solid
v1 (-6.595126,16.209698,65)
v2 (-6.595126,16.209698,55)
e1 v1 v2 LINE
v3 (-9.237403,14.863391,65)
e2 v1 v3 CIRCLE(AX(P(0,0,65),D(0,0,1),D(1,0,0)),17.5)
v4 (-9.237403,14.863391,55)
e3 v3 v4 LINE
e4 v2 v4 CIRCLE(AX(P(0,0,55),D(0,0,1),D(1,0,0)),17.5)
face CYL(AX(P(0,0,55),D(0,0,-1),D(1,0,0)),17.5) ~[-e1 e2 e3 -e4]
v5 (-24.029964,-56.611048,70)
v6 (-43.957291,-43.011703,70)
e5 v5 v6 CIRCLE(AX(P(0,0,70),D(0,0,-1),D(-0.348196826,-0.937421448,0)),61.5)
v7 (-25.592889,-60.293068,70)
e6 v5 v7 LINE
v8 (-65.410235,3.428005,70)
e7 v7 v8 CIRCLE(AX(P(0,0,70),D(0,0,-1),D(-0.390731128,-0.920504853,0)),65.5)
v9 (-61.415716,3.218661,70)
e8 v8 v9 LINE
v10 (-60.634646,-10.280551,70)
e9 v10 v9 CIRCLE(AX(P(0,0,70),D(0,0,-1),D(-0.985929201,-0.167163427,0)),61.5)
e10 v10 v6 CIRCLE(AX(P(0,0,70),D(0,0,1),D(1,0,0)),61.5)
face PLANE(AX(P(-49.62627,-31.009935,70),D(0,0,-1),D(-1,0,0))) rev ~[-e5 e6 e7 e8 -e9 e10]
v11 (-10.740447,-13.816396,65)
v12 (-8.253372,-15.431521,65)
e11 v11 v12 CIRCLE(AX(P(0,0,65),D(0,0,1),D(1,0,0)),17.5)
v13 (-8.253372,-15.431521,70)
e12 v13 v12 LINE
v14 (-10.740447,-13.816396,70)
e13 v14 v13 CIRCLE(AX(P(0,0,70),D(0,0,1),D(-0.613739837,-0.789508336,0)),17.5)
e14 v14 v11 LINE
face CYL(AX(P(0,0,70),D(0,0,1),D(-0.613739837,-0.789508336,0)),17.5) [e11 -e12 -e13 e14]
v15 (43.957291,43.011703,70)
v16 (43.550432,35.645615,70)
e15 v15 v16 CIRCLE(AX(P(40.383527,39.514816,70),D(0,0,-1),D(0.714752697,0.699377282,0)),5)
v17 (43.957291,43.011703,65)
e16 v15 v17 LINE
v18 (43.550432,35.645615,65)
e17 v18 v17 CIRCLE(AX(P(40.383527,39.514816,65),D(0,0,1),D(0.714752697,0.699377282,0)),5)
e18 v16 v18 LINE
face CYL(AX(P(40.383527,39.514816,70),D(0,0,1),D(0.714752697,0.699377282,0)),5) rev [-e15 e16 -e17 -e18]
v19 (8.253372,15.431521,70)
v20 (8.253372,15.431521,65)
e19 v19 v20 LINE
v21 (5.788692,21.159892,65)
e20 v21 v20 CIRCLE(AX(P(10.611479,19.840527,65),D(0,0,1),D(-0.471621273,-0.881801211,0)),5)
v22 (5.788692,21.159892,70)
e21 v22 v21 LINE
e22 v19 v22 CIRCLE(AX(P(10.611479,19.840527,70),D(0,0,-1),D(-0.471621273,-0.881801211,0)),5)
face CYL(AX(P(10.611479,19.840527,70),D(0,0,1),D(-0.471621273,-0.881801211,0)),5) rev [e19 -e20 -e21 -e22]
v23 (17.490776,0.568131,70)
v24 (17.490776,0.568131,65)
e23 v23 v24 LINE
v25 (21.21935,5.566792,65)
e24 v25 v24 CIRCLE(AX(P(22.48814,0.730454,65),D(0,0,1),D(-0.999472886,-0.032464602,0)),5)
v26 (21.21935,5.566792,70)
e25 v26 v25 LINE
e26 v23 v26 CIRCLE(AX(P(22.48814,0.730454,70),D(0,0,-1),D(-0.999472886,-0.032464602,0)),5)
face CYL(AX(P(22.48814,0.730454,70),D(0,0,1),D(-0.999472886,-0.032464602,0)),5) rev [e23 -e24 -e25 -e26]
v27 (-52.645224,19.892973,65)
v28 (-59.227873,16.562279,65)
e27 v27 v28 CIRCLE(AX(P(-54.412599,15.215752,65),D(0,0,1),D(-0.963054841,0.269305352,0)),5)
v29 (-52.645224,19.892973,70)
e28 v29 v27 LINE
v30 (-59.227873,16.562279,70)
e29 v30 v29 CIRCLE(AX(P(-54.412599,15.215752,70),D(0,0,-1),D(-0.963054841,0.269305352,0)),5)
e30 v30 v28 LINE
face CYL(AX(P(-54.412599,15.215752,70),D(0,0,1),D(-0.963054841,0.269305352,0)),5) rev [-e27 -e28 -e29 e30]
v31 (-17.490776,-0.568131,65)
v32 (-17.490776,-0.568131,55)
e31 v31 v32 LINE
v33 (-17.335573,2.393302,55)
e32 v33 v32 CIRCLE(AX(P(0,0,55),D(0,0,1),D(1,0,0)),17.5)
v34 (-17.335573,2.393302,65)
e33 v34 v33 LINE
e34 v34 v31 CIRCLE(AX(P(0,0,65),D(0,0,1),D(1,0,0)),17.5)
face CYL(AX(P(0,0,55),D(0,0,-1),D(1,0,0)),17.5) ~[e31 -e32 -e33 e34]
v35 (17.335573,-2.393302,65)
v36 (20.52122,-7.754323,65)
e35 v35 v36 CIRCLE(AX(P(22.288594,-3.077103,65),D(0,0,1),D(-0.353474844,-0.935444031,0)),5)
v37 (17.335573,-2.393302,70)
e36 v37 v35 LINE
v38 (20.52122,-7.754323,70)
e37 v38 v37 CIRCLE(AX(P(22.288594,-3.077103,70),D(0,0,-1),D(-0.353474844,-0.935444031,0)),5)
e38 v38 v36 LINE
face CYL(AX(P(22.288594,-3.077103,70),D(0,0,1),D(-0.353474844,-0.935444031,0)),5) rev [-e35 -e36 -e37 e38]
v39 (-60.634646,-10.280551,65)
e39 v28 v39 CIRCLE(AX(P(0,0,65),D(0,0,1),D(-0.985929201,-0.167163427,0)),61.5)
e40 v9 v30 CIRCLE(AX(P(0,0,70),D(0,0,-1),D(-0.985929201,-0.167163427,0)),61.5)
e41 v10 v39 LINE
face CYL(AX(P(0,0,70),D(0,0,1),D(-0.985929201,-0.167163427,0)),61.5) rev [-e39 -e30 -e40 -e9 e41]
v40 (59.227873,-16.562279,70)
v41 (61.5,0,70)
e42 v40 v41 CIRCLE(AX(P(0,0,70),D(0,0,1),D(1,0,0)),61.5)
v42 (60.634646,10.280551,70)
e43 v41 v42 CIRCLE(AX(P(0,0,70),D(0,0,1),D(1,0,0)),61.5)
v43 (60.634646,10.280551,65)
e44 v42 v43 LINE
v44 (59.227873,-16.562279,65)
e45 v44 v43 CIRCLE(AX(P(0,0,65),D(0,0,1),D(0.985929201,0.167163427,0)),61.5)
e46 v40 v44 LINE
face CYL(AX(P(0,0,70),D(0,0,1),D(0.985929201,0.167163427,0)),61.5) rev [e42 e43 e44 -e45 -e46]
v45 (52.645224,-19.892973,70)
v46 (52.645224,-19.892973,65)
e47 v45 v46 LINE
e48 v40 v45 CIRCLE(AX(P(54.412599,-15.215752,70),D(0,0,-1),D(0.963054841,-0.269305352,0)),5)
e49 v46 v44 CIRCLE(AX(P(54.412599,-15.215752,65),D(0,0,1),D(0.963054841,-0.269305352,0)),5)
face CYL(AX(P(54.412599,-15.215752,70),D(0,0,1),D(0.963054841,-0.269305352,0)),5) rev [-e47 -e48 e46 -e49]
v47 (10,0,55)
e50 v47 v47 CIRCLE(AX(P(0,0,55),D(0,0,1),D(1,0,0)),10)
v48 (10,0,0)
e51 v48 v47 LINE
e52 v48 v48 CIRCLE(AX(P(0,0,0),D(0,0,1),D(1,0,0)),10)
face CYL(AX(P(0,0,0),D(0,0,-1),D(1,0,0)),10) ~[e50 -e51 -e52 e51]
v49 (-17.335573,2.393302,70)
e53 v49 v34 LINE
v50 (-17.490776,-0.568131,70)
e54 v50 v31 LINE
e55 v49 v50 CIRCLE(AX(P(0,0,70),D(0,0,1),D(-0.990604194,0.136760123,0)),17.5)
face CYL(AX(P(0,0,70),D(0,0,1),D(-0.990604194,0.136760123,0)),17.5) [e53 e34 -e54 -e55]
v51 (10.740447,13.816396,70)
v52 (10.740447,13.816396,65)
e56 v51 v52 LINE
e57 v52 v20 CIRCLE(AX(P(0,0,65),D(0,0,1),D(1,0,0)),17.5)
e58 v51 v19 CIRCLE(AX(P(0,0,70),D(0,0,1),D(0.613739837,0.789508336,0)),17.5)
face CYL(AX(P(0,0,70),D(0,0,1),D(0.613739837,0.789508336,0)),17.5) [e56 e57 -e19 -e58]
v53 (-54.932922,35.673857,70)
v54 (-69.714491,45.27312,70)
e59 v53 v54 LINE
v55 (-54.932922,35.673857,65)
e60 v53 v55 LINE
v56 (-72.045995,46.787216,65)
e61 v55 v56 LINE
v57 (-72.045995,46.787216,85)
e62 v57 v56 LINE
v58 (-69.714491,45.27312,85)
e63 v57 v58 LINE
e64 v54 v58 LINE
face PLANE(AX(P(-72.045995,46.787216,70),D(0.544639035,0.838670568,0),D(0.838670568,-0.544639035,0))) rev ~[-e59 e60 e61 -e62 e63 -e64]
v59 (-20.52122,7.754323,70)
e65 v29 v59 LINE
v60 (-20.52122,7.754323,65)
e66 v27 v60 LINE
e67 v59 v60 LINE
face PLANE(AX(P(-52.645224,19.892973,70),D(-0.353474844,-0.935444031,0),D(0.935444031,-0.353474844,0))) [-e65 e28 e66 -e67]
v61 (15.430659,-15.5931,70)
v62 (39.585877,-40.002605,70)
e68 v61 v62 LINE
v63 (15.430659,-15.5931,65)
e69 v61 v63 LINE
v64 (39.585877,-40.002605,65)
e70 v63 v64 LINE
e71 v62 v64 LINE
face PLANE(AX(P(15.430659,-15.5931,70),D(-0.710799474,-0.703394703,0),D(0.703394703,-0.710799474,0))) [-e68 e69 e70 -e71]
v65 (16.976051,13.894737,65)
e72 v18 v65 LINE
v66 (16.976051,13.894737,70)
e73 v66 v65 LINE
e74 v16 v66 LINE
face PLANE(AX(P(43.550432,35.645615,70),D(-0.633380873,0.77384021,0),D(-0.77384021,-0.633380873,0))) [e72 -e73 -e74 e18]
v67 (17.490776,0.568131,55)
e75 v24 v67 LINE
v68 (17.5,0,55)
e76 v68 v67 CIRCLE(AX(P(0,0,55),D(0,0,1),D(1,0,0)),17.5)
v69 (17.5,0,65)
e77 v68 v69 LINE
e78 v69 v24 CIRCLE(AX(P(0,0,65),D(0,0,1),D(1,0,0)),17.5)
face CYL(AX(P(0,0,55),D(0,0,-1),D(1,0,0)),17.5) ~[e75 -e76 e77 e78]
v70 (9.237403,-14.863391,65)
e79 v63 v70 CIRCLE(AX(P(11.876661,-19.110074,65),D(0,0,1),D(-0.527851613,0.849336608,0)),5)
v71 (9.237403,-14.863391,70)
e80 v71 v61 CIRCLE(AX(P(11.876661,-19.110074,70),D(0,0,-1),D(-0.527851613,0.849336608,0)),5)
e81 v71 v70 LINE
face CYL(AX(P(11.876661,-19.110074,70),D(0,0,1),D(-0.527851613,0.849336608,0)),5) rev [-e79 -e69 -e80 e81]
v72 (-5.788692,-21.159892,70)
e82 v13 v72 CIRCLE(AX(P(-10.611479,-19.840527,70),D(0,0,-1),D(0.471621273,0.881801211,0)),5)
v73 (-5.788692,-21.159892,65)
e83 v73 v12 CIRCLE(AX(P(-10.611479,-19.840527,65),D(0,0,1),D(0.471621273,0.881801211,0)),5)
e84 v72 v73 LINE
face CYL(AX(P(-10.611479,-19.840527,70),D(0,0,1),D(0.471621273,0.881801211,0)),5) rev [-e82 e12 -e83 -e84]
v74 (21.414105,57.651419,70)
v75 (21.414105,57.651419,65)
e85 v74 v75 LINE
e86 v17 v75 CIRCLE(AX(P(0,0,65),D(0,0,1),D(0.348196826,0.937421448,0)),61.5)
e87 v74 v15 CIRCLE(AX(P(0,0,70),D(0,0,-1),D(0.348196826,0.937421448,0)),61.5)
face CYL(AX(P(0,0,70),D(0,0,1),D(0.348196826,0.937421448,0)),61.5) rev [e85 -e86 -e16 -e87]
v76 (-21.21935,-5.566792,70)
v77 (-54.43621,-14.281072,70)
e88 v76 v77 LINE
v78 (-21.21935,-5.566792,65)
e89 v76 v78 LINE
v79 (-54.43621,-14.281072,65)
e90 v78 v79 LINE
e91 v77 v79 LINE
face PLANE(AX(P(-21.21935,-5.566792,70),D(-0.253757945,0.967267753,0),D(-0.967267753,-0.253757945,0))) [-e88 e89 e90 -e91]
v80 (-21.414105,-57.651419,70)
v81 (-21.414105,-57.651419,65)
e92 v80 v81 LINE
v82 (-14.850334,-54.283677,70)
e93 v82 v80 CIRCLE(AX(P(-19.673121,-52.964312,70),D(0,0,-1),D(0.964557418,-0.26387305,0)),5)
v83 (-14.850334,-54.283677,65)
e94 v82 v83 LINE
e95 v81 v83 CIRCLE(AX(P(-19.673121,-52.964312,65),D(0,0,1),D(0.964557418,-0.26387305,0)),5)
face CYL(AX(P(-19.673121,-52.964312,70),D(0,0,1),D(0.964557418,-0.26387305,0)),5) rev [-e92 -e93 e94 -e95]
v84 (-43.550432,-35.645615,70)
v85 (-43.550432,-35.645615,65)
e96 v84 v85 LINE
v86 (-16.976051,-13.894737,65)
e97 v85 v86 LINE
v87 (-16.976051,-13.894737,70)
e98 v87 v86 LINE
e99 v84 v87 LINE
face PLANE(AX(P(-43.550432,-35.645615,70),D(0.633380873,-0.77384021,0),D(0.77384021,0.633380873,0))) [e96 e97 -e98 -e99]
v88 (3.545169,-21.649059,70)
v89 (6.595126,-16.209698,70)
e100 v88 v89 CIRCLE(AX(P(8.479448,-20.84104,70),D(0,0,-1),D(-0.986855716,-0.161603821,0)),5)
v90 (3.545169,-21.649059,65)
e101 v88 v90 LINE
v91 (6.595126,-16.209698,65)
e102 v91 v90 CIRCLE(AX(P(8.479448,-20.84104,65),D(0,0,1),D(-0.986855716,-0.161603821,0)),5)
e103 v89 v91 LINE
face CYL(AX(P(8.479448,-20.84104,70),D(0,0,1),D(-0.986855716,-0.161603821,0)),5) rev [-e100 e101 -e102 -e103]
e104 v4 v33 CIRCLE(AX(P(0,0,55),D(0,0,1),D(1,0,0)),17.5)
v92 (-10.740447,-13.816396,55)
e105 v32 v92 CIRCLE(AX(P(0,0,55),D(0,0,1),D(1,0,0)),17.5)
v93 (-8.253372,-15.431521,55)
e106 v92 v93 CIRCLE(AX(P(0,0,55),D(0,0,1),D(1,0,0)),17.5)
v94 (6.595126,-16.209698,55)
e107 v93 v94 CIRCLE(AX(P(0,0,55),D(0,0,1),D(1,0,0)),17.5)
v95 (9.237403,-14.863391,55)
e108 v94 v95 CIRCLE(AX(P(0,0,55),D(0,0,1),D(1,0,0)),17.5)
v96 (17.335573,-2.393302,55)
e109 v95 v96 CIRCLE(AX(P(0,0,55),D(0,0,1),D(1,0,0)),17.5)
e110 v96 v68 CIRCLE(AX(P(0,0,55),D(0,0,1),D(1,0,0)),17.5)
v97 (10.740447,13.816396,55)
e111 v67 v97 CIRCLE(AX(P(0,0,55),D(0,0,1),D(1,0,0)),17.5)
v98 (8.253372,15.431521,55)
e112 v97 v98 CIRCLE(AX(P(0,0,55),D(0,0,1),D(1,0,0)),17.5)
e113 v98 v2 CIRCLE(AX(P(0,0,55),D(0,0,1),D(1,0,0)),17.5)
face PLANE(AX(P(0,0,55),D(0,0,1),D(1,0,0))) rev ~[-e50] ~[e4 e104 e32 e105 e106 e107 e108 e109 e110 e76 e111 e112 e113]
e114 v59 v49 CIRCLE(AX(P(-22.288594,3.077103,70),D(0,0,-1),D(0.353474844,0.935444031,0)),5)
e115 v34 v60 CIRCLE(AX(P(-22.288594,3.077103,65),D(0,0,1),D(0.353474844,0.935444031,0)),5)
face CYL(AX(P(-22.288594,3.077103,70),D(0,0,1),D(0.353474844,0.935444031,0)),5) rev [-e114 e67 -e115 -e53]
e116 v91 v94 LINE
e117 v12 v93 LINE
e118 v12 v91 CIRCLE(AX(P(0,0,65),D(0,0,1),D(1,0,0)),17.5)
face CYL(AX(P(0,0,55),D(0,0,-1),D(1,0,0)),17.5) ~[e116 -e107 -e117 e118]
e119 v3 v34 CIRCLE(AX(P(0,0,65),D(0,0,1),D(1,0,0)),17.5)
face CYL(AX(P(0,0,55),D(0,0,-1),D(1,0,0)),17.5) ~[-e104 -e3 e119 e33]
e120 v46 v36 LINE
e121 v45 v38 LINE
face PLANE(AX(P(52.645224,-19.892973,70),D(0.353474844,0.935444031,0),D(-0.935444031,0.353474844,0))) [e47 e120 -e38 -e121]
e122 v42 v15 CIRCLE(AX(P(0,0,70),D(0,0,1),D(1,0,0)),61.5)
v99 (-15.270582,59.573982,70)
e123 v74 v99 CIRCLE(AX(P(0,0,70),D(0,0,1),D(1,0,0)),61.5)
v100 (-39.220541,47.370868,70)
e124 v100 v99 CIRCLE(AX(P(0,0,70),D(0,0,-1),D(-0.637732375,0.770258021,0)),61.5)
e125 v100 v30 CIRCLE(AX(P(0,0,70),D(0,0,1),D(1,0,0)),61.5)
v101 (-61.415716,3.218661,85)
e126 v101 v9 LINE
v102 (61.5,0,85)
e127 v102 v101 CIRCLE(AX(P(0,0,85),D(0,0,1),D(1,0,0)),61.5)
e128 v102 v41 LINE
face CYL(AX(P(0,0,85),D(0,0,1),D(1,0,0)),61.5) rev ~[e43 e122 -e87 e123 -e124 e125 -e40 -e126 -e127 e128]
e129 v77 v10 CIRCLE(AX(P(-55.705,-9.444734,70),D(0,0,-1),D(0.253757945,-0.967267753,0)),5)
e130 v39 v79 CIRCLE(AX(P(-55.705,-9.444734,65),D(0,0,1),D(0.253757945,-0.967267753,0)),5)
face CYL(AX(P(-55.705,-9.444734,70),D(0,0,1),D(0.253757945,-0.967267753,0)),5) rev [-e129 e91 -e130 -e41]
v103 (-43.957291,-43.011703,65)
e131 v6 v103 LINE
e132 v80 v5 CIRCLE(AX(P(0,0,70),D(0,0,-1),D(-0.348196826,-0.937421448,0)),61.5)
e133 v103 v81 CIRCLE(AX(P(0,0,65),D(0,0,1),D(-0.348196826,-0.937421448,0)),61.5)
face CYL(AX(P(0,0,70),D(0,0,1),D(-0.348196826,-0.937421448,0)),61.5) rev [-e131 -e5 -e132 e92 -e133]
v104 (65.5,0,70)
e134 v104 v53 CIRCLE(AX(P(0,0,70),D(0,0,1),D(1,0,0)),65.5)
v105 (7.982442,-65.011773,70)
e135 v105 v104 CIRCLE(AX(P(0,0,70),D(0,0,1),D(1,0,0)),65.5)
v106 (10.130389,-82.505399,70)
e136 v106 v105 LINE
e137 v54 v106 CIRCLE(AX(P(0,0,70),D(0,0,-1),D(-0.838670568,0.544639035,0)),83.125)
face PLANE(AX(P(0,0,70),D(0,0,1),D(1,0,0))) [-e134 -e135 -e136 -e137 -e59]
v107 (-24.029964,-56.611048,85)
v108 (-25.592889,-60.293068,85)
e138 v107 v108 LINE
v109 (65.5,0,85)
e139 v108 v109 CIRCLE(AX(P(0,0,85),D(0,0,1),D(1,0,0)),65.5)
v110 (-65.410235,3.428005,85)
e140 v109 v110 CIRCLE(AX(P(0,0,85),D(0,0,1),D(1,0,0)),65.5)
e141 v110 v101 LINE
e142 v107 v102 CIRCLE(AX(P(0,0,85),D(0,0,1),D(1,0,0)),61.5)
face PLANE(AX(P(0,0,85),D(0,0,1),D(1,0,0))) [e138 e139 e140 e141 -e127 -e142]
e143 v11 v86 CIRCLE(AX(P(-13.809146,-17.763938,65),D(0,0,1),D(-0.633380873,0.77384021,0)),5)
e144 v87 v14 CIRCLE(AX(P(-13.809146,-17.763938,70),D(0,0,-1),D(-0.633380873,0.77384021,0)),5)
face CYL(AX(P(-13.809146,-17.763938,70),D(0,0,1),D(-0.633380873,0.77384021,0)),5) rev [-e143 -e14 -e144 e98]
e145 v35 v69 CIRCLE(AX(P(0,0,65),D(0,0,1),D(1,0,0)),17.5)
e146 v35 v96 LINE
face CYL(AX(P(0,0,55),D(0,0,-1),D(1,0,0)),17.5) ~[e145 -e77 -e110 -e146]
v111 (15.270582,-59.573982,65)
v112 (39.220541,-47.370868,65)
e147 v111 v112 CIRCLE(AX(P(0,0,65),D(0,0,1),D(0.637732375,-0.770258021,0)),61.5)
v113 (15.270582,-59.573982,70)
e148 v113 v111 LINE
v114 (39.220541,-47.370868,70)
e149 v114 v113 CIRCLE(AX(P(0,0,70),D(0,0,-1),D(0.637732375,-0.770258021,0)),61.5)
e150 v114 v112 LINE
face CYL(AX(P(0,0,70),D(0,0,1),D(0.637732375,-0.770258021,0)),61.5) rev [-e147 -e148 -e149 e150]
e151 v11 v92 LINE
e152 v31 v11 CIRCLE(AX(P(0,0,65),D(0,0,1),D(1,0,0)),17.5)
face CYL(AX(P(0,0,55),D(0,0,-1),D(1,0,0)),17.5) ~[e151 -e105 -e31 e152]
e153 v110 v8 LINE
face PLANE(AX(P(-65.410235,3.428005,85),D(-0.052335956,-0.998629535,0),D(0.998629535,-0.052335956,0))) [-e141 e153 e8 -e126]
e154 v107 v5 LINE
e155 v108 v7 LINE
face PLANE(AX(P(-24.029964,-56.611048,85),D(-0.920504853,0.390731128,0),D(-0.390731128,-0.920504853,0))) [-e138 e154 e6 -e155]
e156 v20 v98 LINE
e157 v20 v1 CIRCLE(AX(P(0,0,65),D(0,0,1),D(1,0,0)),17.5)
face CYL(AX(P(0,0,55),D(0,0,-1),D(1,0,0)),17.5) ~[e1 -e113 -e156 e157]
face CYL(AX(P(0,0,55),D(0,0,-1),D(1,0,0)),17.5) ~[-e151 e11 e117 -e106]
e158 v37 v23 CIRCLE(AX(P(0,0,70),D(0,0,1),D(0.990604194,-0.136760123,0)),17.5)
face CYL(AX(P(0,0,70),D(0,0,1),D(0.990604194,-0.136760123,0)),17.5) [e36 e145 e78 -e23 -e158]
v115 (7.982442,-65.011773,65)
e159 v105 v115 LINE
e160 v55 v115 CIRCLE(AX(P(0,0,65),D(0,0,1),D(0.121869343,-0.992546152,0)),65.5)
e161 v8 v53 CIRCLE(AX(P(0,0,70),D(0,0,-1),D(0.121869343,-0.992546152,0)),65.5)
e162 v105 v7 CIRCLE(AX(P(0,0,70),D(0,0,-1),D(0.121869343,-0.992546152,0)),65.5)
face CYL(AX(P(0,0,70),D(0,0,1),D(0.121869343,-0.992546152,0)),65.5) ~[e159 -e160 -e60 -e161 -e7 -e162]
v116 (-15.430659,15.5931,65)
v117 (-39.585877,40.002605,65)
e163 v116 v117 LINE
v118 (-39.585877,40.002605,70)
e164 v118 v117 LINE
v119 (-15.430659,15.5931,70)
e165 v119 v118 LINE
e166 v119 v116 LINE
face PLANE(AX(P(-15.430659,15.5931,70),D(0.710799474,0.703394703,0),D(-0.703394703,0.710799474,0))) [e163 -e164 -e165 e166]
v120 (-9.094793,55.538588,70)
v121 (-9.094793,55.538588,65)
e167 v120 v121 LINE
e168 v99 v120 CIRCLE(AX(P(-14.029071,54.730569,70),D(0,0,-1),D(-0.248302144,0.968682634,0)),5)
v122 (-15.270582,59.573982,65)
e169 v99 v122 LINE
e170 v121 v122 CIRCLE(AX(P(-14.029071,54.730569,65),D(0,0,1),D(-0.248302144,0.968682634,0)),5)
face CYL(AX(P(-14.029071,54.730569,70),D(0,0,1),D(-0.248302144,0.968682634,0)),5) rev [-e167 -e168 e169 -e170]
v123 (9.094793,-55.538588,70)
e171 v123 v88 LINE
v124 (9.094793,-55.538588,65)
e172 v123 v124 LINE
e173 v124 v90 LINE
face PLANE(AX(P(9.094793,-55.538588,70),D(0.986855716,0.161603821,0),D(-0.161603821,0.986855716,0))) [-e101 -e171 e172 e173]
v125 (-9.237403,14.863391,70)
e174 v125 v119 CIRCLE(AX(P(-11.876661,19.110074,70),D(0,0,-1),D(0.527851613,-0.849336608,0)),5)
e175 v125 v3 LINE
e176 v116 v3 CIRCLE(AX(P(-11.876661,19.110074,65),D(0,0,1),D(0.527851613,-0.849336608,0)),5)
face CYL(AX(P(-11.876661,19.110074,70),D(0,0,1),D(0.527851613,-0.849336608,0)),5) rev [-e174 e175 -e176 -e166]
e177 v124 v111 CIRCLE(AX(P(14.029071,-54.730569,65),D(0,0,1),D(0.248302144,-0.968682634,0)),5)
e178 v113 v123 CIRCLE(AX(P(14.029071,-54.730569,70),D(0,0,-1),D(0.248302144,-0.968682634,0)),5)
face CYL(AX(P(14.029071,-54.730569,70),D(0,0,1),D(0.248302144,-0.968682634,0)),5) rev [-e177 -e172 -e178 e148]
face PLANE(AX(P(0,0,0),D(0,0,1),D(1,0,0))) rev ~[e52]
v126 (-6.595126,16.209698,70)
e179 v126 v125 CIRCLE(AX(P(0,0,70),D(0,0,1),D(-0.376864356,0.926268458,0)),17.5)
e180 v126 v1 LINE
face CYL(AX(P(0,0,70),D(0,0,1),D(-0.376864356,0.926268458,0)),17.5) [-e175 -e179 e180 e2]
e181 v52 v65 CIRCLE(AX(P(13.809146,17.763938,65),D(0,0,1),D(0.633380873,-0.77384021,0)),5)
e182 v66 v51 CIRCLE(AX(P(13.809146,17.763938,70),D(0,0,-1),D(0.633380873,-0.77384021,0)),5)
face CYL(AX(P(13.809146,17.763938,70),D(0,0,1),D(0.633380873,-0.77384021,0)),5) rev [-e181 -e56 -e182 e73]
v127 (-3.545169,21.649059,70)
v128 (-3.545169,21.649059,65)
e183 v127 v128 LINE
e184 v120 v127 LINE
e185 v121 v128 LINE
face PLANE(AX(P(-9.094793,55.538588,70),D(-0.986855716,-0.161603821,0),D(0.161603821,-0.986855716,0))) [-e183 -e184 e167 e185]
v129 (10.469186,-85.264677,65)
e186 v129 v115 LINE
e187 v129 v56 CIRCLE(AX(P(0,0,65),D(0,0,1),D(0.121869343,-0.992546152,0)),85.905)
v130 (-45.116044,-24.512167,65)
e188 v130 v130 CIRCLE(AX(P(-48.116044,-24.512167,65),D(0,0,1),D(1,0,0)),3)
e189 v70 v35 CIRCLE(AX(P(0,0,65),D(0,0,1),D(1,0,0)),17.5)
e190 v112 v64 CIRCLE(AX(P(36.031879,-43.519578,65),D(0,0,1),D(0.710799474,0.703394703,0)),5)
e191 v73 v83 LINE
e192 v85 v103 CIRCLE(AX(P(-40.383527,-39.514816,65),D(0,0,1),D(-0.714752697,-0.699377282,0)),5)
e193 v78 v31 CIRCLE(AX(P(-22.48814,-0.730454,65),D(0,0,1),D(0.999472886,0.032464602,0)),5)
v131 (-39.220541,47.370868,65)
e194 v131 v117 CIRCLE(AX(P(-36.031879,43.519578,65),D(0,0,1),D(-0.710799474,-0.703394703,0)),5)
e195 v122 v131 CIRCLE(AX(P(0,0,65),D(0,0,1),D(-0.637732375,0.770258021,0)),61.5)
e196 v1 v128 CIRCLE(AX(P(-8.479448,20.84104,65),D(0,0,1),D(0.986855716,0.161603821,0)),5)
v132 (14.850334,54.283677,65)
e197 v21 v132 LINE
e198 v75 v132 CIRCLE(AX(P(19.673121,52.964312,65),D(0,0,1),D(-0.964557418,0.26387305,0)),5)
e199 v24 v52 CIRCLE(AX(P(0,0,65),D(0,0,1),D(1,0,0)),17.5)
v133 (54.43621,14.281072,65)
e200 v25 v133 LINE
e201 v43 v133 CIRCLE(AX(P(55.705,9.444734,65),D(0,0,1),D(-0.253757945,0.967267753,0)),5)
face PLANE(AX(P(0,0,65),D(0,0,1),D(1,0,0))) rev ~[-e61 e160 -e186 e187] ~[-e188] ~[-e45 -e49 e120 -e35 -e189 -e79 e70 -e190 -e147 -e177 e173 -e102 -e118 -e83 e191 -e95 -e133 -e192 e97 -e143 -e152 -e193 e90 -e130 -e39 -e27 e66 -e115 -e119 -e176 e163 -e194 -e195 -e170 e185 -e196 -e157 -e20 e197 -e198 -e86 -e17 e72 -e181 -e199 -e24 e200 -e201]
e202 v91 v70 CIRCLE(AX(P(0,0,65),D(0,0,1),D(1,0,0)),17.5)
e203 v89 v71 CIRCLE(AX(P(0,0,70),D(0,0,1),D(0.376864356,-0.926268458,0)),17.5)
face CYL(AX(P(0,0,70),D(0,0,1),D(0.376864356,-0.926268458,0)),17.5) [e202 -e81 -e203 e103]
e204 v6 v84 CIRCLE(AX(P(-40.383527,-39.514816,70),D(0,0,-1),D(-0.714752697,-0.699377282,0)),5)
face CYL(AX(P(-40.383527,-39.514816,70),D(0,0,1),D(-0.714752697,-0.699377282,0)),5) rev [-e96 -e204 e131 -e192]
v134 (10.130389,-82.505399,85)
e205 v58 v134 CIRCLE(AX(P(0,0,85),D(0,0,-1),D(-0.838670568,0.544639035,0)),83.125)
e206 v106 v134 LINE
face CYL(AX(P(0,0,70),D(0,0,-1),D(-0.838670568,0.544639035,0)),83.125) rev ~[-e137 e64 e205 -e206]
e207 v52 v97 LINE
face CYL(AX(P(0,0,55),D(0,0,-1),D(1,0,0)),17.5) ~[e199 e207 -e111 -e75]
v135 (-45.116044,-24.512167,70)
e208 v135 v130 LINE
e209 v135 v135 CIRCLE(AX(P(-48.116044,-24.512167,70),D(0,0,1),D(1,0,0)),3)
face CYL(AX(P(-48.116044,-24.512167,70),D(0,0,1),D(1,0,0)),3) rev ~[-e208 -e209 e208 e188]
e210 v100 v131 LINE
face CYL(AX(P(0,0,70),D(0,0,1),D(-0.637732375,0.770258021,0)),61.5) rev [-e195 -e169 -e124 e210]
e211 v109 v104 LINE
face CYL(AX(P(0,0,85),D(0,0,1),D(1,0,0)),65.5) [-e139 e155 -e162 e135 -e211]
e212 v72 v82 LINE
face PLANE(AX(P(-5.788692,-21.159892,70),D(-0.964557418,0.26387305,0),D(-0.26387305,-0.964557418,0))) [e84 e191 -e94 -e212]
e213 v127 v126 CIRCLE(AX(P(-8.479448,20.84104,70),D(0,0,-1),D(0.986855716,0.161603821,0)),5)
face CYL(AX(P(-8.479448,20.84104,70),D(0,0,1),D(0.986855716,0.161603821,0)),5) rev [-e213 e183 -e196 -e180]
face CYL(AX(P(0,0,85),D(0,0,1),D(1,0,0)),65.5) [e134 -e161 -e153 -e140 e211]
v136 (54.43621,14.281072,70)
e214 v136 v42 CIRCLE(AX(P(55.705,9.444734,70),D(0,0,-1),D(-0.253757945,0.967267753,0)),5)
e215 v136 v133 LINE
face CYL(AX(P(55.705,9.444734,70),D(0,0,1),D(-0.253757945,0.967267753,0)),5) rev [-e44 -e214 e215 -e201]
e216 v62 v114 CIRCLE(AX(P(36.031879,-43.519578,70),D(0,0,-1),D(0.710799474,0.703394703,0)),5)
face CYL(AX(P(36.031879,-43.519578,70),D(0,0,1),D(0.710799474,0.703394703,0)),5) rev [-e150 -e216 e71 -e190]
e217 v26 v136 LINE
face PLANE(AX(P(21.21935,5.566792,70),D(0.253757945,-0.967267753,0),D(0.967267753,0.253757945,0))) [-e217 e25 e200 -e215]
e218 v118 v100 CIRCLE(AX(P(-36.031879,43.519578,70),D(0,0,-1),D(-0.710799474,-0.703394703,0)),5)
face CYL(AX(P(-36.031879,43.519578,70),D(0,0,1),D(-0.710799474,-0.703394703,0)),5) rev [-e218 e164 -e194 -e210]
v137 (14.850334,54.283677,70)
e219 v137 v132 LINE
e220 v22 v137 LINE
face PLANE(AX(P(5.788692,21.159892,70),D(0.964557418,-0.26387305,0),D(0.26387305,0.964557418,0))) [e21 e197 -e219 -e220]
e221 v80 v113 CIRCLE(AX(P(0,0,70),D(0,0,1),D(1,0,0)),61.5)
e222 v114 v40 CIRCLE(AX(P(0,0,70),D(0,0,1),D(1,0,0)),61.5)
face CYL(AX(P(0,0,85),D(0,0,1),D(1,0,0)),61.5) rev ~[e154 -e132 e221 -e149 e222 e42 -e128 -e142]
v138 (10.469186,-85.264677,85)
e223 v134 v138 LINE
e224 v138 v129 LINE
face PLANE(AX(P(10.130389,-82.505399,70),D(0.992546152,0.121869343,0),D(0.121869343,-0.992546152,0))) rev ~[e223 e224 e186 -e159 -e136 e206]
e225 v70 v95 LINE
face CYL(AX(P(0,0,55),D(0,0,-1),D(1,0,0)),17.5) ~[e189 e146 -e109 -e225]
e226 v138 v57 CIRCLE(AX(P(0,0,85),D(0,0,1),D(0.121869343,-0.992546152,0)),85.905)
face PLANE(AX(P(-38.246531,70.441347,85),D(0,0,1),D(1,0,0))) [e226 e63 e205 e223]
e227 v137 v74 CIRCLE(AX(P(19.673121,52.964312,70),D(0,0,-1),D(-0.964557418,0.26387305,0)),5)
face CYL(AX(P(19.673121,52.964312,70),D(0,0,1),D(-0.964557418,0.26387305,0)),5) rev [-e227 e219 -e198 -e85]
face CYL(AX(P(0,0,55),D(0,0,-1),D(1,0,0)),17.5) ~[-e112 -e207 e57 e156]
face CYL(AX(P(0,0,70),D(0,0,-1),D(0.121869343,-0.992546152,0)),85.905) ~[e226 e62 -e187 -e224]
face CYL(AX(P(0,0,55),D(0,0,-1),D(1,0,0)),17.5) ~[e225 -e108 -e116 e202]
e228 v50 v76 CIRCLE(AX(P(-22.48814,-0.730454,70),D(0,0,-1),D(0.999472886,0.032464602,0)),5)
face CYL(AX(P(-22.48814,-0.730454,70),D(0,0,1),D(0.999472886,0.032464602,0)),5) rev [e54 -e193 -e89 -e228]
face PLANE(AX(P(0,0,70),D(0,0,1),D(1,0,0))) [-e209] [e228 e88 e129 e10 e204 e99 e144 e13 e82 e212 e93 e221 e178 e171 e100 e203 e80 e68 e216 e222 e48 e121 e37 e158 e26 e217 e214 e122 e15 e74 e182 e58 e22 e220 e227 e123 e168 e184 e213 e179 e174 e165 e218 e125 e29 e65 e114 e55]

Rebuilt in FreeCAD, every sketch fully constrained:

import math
import FreeCAD as App
import Part
import Sketcher
Q = App.Units.Quantity

doc = App.newDocument("Part")
body = doc.addObject("PartDesign::Body", "Body")

sketch1 = doc.addObject("Sketcher::SketchObject", "Sketch")
body.addObject(sketch1)
sketch1.AttachmentSupport = (doc.XY_Plane, [""])
sketch1.MapMode = "FlatFace"
sketch1.addGeometry(Part.Circle(App.Vector(0, 0, 0), App.Vector(0, 0, 1), 10), False)
sketch1.addConstraint([
    Sketcher.Constraint("Coincident", 0, 3, -1, 1),
    Sketcher.Constraint("Diameter", 0, 20.0),
])
pad1 = doc.addObject("PartDesign::Pad", "Pad")
body.addObject(pad1)
pad1.Profile = sketch1
pad1.Length = 55

sketch2 = doc.addObject("Sketcher::SketchObject", "Sketch001")
body.addObject(sketch2)
sketch2.AttachmentSupport = (doc.XY_Plane, [""])
sketch2.MapMode = "FlatFace"
sketch2.AttachmentOffset = App.Placement(App.Vector(0, 0, 55), App.Rotation())
sketch2.addGeometry(Part.Circle(App.Vector(0, 0, 0), App.Vector(0, 0, 1), 17.5), False)
sketch2.addConstraint([
    Sketcher.Constraint("Coincident", 0, 3, -1, 1),
    Sketcher.Constraint("Diameter", 0, 35.0),
])
pad2 = doc.addObject("PartDesign::Pad", "Pad001")
body.addObject(pad2)
pad2.Profile = sketch2
pad2.Length = 10

sketch3 = doc.addObject("Sketcher::SketchObject", "Sketch002")
body.addObject(sketch3)
sketch3.AttachmentSupport = (doc.XY_Plane, [""])
sketch3.MapMode = "FlatFace"
sketch3.AttachmentOffset = App.Placement(App.Vector(0, 0, 65), App.Rotation())
sketch3.addGeometry(Part.Circle(App.Vector(0, 0, 0), App.Vector(0, 0, 1), 85.905), False)
sketch3.addConstraint([
    Sketcher.Constraint("Coincident", 0, 3, -1, 1),
    Sketcher.Constraint("Diameter", 0, 171.81),
])
pad3 = doc.addObject("PartDesign::Pad", "Pad002")
body.addObject(pad3)
pad3.Profile = sketch3
pad3.Length = 5

sketch4 = doc.addObject("Sketcher::SketchObject", "Sketch003")
body.addObject(sketch4)
sketch4.AttachmentSupport = (doc.XY_Plane, [""])
sketch4.MapMode = "FlatFace"
sketch4.AttachmentOffset = App.Placement(App.Vector(0, 0, 70), App.Rotation())
sketch4.addGeometry([
    Part.LineSegment(App.Vector(-72.045995, 46.787216, 0), App.Vector(-69.714491, 45.27312, 0)),
    Part.ArcOfCircle(Part.Circle(App.Vector(0, 0, 0), App.Vector(0, 0, 1), 83.125), math.radians(-83), math.radians(147)),
    Part.LineSegment(App.Vector(10.130389, -82.505399, 0), App.Vector(10.469186, -85.264677, 0)),
    Part.ArcOfCircle(Part.Circle(App.Vector(0, 0, 0), App.Vector(0, 0, 1), 85.905), math.radians(-83), math.radians(147)),
], False)
sketch4.addConstraint([
    Sketcher.Constraint("Coincident", 0, 2, 1, 2),
    Sketcher.Constraint("Coincident", 1, 1, 2, 1),
    Sketcher.Constraint("Coincident", 2, 2, 3, 1),
    Sketcher.Constraint("Coincident", 3, 2, 0, 1),
    Sketcher.Constraint("Coincident", 1, 3, -1, 1),
    Sketcher.Constraint("Coincident", 3, 3, -1, 1),
    Sketcher.Constraint("Angle", 0, Q("-33 deg")),
    Sketcher.Constraint("Angle", 2, Q("-83 deg")),
    Sketcher.Constraint("Radius", 1, 83.125),
    Sketcher.Constraint("Radius", 3, 85.905),
    Sketcher.Constraint("DistanceY", 1, 1, -1, 1, 82.505399),
    Sketcher.Constraint("DistanceX", 0, 2, -1, 1, 69.714491),
])
pad4 = doc.addObject("PartDesign::Pad", "Pad003")
body.addObject(pad4)
pad4.Profile = sketch4
pad4.Length = 15

sketch5 = doc.addObject("Sketcher::SketchObject", "Sketch004")
body.addObject(sketch5)
sketch5.AttachmentSupport = (doc.XY_Plane, [""])
sketch5.MapMode = "FlatFace"
sketch5.AttachmentOffset = App.Placement(App.Vector(0, 0, 70), App.Rotation())
sketch5.addGeometry([
    Part.ArcOfCircle(Part.Circle(App.Vector(0, 0, 0), App.Vector(0, 0, 1), 85.905), math.radians(147), math.radians(277)),
    Part.LineSegment(App.Vector(10.469186, -85.264677, 0), App.Vector(7.982442, -65.011773, 0)),
    Part.ArcOfCircle(Part.Circle(App.Vector(0, 0, 0), App.Vector(0, 0, 1), 65.5), math.radians(147), math.radians(277)),
    Part.LineSegment(App.Vector(-54.932922, 35.673857, 0), App.Vector(-72.045995, 46.787216, 0)),
], False)
sketch5.addConstraint([
    Sketcher.Constraint("Coincident", 0, 2, 1, 1),
    Sketcher.Constraint("Coincident", 1, 2, 2, 2),
    Sketcher.Constraint("Coincident", 2, 1, 3, 1),
    Sketcher.Constraint("Coincident", 3, 2, 0, 1),
    Sketcher.Constraint("Coincident", 0, 3, -1, 1),
    Sketcher.Constraint("Coincident", 2, 3, -1, 1),
    Sketcher.Constraint("Radius", 2, 65.5),
    Sketcher.Constraint("Angle", 1, Q("97 deg")),
    Sketcher.Constraint("Angle", 3, Q("147 deg")),
    Sketcher.Constraint("Radius", 0, 85.905),
    Sketcher.Constraint("DistanceX", -1, 1, 1, 2, 7.982442),
    Sketcher.Constraint("DistanceY", 1, 2, 2, 1, 100.68563),
])
pocket1 = doc.addObject("PartDesign::Pocket", "Pocket")
body.addObject(pocket1)
pocket1.Profile = sketch5
pocket1.Type = "ThroughAll"

sketch6 = doc.addObject("Sketcher::SketchObject", "Sketch005")
body.addObject(sketch6)
sketch6.AttachmentSupport = (doc.XY_Plane, [""])
sketch6.MapMode = "FlatFace"
sketch6.AttachmentOffset = App.Placement(App.Vector(0, 0, 85), App.Rotation())
sketch6.addGeometry([
    Part.Circle(App.Vector(0, 0, 0), App.Vector(0, 0, 1), 65.5),
    Part.Circle(App.Vector(0, 0, 0), App.Vector(0, 0, 1), 61.5),
], False)
sketch6.addConstraint([
    Sketcher.Constraint("Coincident", 0, 3, -1, 1),
    Sketcher.Constraint("Coincident", 1, 3, -1, 1),
    Sketcher.Constraint("Diameter", 0, 131.0),
    Sketcher.Constraint("Diameter", 1, 123.0),
])
pad5 = doc.addObject("PartDesign::Pad", "Pad004")
body.addObject(pad5)
pad5.Profile = sketch6
pad5.Length = 15
pad5.Reversed = True

sketch7 = doc.addObject("Sketcher::SketchObject", "Sketch006")
body.addObject(sketch7)
sketch7.AttachmentSupport = (doc.XY_Plane, [""])
sketch7.MapMode = "FlatFace"
sketch7.AttachmentOffset = App.Placement(App.Vector(0, 0, 70), App.Rotation())
sketch7.addGeometry([
    Part.LineSegment(App.Vector(-3.545169, 21.649059, 0), App.Vector(-9.094793, 55.538588, 0)),
    Part.ArcOfCircle(Part.Circle(App.Vector(-14.029071, 54.730569, 0), App.Vector(0, 0, 1), 5), math.radians(9.3), math.radians(104.377065)),
    Part.ArcOfCircle(Part.Circle(App.Vector(0, 0, 0), App.Vector(0, 0, 1), 61.5), math.radians(104.377065), math.radians(129.622935)),
    Part.ArcOfCircle(Part.Circle(App.Vector(-36.031879, 43.519578, 0), App.Vector(0, 0, 1), 5), math.radians(129.622935), math.radians(224.7)),
    Part.LineSegment(App.Vector(-39.585877, 40.002605, 0), App.Vector(-15.430659, 15.5931, 0)),
    Part.ArcOfCircle(Part.Circle(App.Vector(-11.876661, 19.110074, 0), App.Vector(0, 0, 1), 5), math.radians(-135.3), math.radians(-58.139588)),
    Part.ArcOfCircle(Part.Circle(App.Vector(0, 0, 0), App.Vector(0, 0, 1), 17.5), math.radians(112.139588), math.radians(121.860412)),
    Part.ArcOfCircle(Part.Circle(App.Vector(-8.479448, 20.84104, 0), App.Vector(0, 0, 1), 5), math.radians(-67.860412), math.radians(9.3)),
    Part.LineSegment(App.Vector(16.976051, 13.894737, 0), App.Vector(43.550432, 35.645615, 0)),
    Part.ArcOfCircle(Part.Circle(App.Vector(40.383527, 39.514816, 0), App.Vector(0, 0, 1), 5), math.radians(-50.7), math.radians(44.377065)),
    Part.ArcOfCircle(Part.Circle(App.Vector(0, 0, 0), App.Vector(0, 0, 1), 61.5), math.radians(44.377065), math.radians(69.622935)),
    Part.ArcOfCircle(Part.Circle(App.Vector(19.673121, 52.964312, 0), App.Vector(0, 0, 1), 5), math.radians(69.622935), math.radians(164.7)),
    Part.LineSegment(App.Vector(14.850334, 54.283677, 0), App.Vector(5.788692, 21.159892, 0)),
    Part.ArcOfCircle(Part.Circle(App.Vector(10.611479, 19.840527, 0), App.Vector(0, 0, 1), 5), math.radians(164.7), math.radians(241.860412)),
    Part.ArcOfCircle(Part.Circle(App.Vector(0, 0, 0), App.Vector(0, 0, 1), 17.5), math.radians(52.139588), math.radians(61.860412)),
    Part.ArcOfCircle(Part.Circle(App.Vector(13.809146, 17.763938, 0), App.Vector(0, 0, 1), 5), math.radians(-127.860412), math.radians(-50.7)),
    Part.LineSegment(App.Vector(20.52122, -7.754323, 0), App.Vector(52.645224, -19.892973, 0)),
    Part.ArcOfCircle(Part.Circle(App.Vector(54.412599, -15.215752, 0), App.Vector(0, 0, 1), 5), math.radians(-110.7), math.radians(-15.622935)),
    Part.ArcOfCircle(Part.Circle(App.Vector(0, 0, 0), App.Vector(0, 0, 1), 61.5), math.radians(-15.622935), math.radians(9.622935)),
    Part.ArcOfCircle(Part.Circle(App.Vector(55.705, 9.444734, 0), App.Vector(0, 0, 1), 5), math.radians(9.622935), math.radians(104.7)),
    Part.LineSegment(App.Vector(54.43621, 14.281072, 0), App.Vector(21.21935, 5.566792, 0)),
    Part.ArcOfCircle(Part.Circle(App.Vector(22.48814, 0.730454, 0), App.Vector(0, 0, 1), 5), math.radians(104.7), math.radians(181.860412)),
    Part.ArcOfCircle(Part.Circle(App.Vector(0, 0, 0), App.Vector(0, 0, 1), 17.5), math.radians(-7.860412), math.radians(1.860412)),
    Part.ArcOfCircle(Part.Circle(App.Vector(22.288594, -3.077103, 0), App.Vector(0, 0, 1), 5), math.radians(172.139588), math.radians(249.3)),
    Part.LineSegment(App.Vector(3.545169, -21.649059, 0), App.Vector(9.094793, -55.538588, 0)),
    Part.ArcOfCircle(Part.Circle(App.Vector(14.029071, -54.730569, 0), App.Vector(0, 0, 1), 5), math.radians(-170.7), math.radians(-75.622935)),
    Part.ArcOfCircle(Part.Circle(App.Vector(0, 0, 0), App.Vector(0, 0, 1), 61.5), math.radians(-75.622935), math.radians(-50.377065)),
    Part.ArcOfCircle(Part.Circle(App.Vector(36.031879, -43.519578, 0), App.Vector(0, 0, 1), 5), math.radians(-50.377065), math.radians(44.7)),
    Part.LineSegment(App.Vector(39.585877, -40.002605, 0), App.Vector(15.430659, -15.5931, 0)),
    Part.ArcOfCircle(Part.Circle(App.Vector(11.876661, -19.110074, 0), App.Vector(0, 0, 1), 5), math.radians(44.7), math.radians(121.860412)),
    Part.ArcOfCircle(Part.Circle(App.Vector(0, 0, 0), App.Vector(0, 0, 1), 17.5), math.radians(-67.860412), math.radians(-58.139588)),
    Part.ArcOfCircle(Part.Circle(App.Vector(8.479448, -20.84104, 0), App.Vector(0, 0, 1), 5), math.radians(112.139588), math.radians(189.3)),
    Part.LineSegment(App.Vector(-16.976051, -13.894737, 0), App.Vector(-43.550432, -35.645615, 0)),
    Part.ArcOfCircle(Part.Circle(App.Vector(-40.383527, -39.514816, 0), App.Vector(0, 0, 1), 5), math.radians(129.3), math.radians(224.377065)),
    Part.ArcOfCircle(Part.Circle(App.Vector(0, 0, 0), App.Vector(0, 0, 1), 61.5), math.radians(-135.622935), math.radians(-110.377065)),
    Part.ArcOfCircle(Part.Circle(App.Vector(-19.673121, -52.964312, 0), App.Vector(0, 0, 1), 5), math.radians(-110.377065), math.radians(-15.3)),
    Part.LineSegment(App.Vector(-14.850334, -54.283677, 0), App.Vector(-5.788692, -21.159892, 0)),
    Part.ArcOfCircle(Part.Circle(App.Vector(-10.611479, -19.840527, 0), App.Vector(0, 0, 1), 5), math.radians(-15.3), math.radians(61.860412)),
    Part.ArcOfCircle(Part.Circle(App.Vector(0, 0, 0), App.Vector(0, 0, 1), 17.5), math.radians(-127.860412), math.radians(-118.139588)),
    Part.ArcOfCircle(Part.Circle(App.Vector(-13.809146, -17.763938, 0), App.Vector(0, 0, 1), 5), math.radians(52.139588), math.radians(129.3)),
    Part.LineSegment(App.Vector(-20.52122, 7.754323, 0), App.Vector(-52.645224, 19.892973, 0)),
    Part.ArcOfCircle(Part.Circle(App.Vector(-54.412599, 15.215752, 0), App.Vector(0, 0, 1), 5), math.radians(69.3), math.radians(164.377065)),
    Part.ArcOfCircle(Part.Circle(App.Vector(0, 0, 0), App.Vector(0, 0, 1), 61.5), math.radians(164.377065), math.radians(189.622935)),
    Part.ArcOfCircle(Part.Circle(App.Vector(-55.705, -9.444734, 0), App.Vector(0, 0, 1), 5), math.radians(-170.377065), math.radians(-75.3)),
    Part.LineSegment(App.Vector(-54.43621, -14.281072, 0), App.Vector(-21.21935, -5.566792, 0)),
    Part.ArcOfCircle(Part.Circle(App.Vector(-22.48814, -0.730454, 0), App.Vector(0, 0, 1), 5), math.radians(-75.3), math.radians(1.860412)),
    Part.ArcOfCircle(Part.Circle(App.Vector(0, 0, 0), App.Vector(0, 0, 1), 17.5), math.radians(172.139588), math.radians(181.860412)),
    Part.ArcOfCircle(Part.Circle(App.Vector(-22.288594, 3.077103, 0), App.Vector(0, 0, 1), 5), math.radians(-7.860412), math.radians(69.3)),
], False)
sketch7.addConstraint([
    Sketcher.Constraint("Tangent", 0, 2, 1, 1),
    Sketcher.Constraint("Tangent", 1, 2, 2, 1),
    Sketcher.Constraint("Tangent", 2, 2, 3, 1),
    Sketcher.Constraint("Tangent", 3, 2, 4, 1),
    Sketcher.Constraint("Tangent", 4, 2, 5, 1),
    Sketcher.Constraint("Tangent", 5, 2, 6, 2),
    Sketcher.Constraint("Tangent", 6, 1, 7, 1),
    Sketcher.Constraint("Tangent", 7, 2, 0, 1),
    Sketcher.Constraint("Tangent", 8, 2, 9, 1),
    Sketcher.Constraint("Tangent", 9, 2, 10, 1),
    Sketcher.Constraint("Tangent", 10, 2, 11, 1),
    Sketcher.Constraint("Tangent", 11, 2, 12, 1),
    Sketcher.Constraint("Tangent", 12, 2, 13, 1),
    Sketcher.Constraint("Tangent", 13, 2, 14, 2),
    Sketcher.Constraint("Tangent", 14, 1, 15, 1),
    Sketcher.Constraint("Tangent", 15, 2, 8, 1),
    Sketcher.Constraint("Tangent", 16, 2, 17, 1),
    Sketcher.Constraint("Tangent", 17, 2, 18, 1),
    Sketcher.Constraint("Tangent", 18, 2, 19, 1),
    Sketcher.Constraint("Tangent", 19, 2, 20, 1),
    Sketcher.Constraint("Tangent", 20, 2, 21, 1),
    Sketcher.Constraint("Tangent", 21, 2, 22, 2),
    Sketcher.Constraint("Tangent", 22, 1, 23, 1),
    Sketcher.Constraint("Tangent", 23, 2, 16, 1),
    Sketcher.Constraint("Tangent", 24, 2, 25, 1),
    Sketcher.Constraint("Tangent", 25, 2, 26, 1),
    Sketcher.Constraint("Tangent", 26, 2, 27, 1),
    Sketcher.Constraint("Tangent", 27, 2, 28, 1),
    Sketcher.Constraint("Tangent", 28, 2, 29, 1),
    Sketcher.Constraint("Tangent", 29, 2, 30, 2),
    Sketcher.Constraint("Tangent", 30, 1, 31, 1),
    Sketcher.Constraint("Tangent", 31, 2, 24, 1),
    Sketcher.Constraint("Tangent", 32, 2, 33, 1),
    Sketcher.Constraint("Tangent", 33, 2, 34, 1),
    Sketcher.Constraint("Tangent", 34, 2, 35, 1),
    Sketcher.Constraint("Tangent", 35, 2, 36, 1),
    Sketcher.Constraint("Tangent", 36, 2, 37, 1),
    Sketcher.Constraint("Tangent", 37, 2, 38, 2),
    Sketcher.Constraint("Tangent", 38, 1, 39, 1),
    Sketcher.Constraint("Tangent", 39, 2, 32, 1),
    Sketcher.Constraint("Tangent", 40, 2, 41, 1),
    Sketcher.Constraint("Tangent", 41, 2, 42, 1),
    Sketcher.Constraint("Tangent", 42, 2, 43, 1),
    Sketcher.Constraint("Tangent", 43, 2, 44, 1),
    Sketcher.Constraint("Tangent", 44, 2, 45, 1),
    Sketcher.Constraint("Tangent", 45, 2, 46, 2),
    Sketcher.Constraint("Tangent", 46, 1, 47, 1),
    Sketcher.Constraint("Tangent", 47, 2, 40, 1),
    Sketcher.Constraint("Coincident", 2, 3, -1, 1),
    Sketcher.Constraint("Coincident", 6, 3, -1, 1),
    Sketcher.Constraint("Coincident", 10, 3, -1, 1),
    Sketcher.Constraint("Coincident", 14, 3, -1, 1),
    Sketcher.Constraint("Coincident", 18, 3, -1, 1),
    Sketcher.Constraint("Coincident", 22, 3, -1, 1),
    Sketcher.Constraint("Coincident", 26, 3, -1, 1),
    Sketcher.Constraint("Coincident", 30, 3, -1, 1),
    Sketcher.Constraint("Coincident", 34, 3, -1, 1),
    Sketcher.Constraint("Coincident", 38, 3, -1, 1),
    Sketcher.Constraint("Coincident", 42, 3, -1, 1),
    Sketcher.Constraint("Coincident", 46, 3, -1, 1),
    Sketcher.Constraint("Equal", 1, 3),
    Sketcher.Constraint("Equal", 3, 5),
    Sketcher.Constraint("Equal", 5, 7),
    Sketcher.Constraint("Equal", 7, 9),
    Sketcher.Constraint("Equal", 2, 10),
    Sketcher.Constraint("Equal", 9, 11),
    Sketcher.Constraint("Equal", 11, 13),
    Sketcher.Constraint("Equal", 6, 14),
    Sketcher.Constraint("Equal", 13, 15),
    Sketcher.Constraint("Equal", 15, 17),
    Sketcher.Constraint("Equal", 10, 18),
    Sketcher.Constraint("Equal", 17, 19),
    Sketcher.Constraint("Equal", 19, 21),
    Sketcher.Constraint("Equal", 14, 22),
    Sketcher.Constraint("Equal", 21, 23),
    Sketcher.Constraint("Equal", 23, 25),
    Sketcher.Constraint("Equal", 18, 26),
    Sketcher.Constraint("Equal", 25, 27),
    Sketcher.Constraint("Equal", 27, 29),
    Sketcher.Constraint("Equal", 22, 30),
    Sketcher.Constraint("Equal", 29, 31),
    Sketcher.Constraint("Equal", 31, 33),
    Sketcher.Constraint("Equal", 26, 34),
    Sketcher.Constraint("Equal", 33, 35),
    Sketcher.Constraint("Equal", 35, 37),
    Sketcher.Constraint("Equal", 30, 38),
    Sketcher.Constraint("Equal", 37, 39),
    Sketcher.Constraint("Equal", 39, 41),
    Sketcher.Constraint("Equal", 34, 42),
    Sketcher.Constraint("Equal", 41, 43),
    Sketcher.Constraint("Equal", 43, 45),
    Sketcher.Constraint("Equal", 38, 46),
    Sketcher.Constraint("Equal", 45, 47),
    Sketcher.Constraint("Symmetric", 0, 2, 24, 2, -1, 1),
    Sketcher.Constraint("Symmetric", 3, 2, 27, 2, -1, 1),
    Sketcher.Constraint("Symmetric", 8, 2, 32, 2, -1, 1),
    Sketcher.Constraint("Symmetric", 11, 2, 35, 2, -1, 1),
    Sketcher.Constraint("Symmetric", 16, 2, 40, 2, -1, 1),
    Sketcher.Constraint("Symmetric", 19, 2, 43, 2, -1, 1),
    Sketcher.Constraint("Equal", 0, 4),
    Sketcher.Constraint("Equal", 4, 8),
    Sketcher.Constraint("Equal", 8, 12),
    Sketcher.Constraint("Equal", 12, 16),
    Sketcher.Constraint("Equal", 16, 20),
    Sketcher.Constraint("Radius", 1, 5.0),
    Sketcher.Constraint("Radius", 2, 61.5),
    Sketcher.Constraint("Radius", 6, 17.5),
    Sketcher.Constraint("Angle", 0, Q("99.3 deg")),
    Sketcher.Constraint("Angle", 4, Q("-45.3 deg")),
    Sketcher.Constraint("Angle", 8, Q("39.3 deg")),
    Sketcher.Constraint("Angle", 12, Q("-105.3 deg")),
    Sketcher.Constraint("Angle", 16, Q("-20.7 deg")),
    Sketcher.Constraint("Angle", 20, Q("-165.3 deg")),
    Sketcher.Constraint("DistanceX", -1, 1, 19, 3, 55.705),
])
pocket2 = doc.addObject("PartDesign::Pocket", "Pocket001")
body.addObject(pocket2)
pocket2.Profile = sketch7
pocket2.Type = "ThroughAll"

sketch8 = doc.addObject("Sketcher::SketchObject", "Sketch007")
body.addObject(sketch8)
sketch8.AttachmentSupport = (doc.XY_Plane, [""])
sketch8.MapMode = "FlatFace"
sketch8.AttachmentOffset = App.Placement(App.Vector(0, 0, 85), App.Rotation())
sketch8.addGeometry([
    Part.LineSegment(App.Vector(-61.415716, 3.218661, 0), App.Vector(-65.410235, 3.428005, 0)),
    Part.ArcOfCircle(Part.Circle(App.Vector(0, 0, 0), App.Vector(0, 0, 1), 65.5), math.radians(177), math.radians(247)),
    Part.LineSegment(App.Vector(-25.592889, -60.293068, 0), App.Vector(-24.029964, -56.611048, 0)),
    Part.ArcOfCircle(Part.Circle(App.Vector(0, 0, 0), App.Vector(0, 0, 1), 61.5), math.radians(177), math.radians(247)),
], False)
sketch8.addConstraint([
    Sketcher.Constraint("Coincident", 0, 2, 1, 1),
    Sketcher.Constraint("Coincident", 1, 2, 2, 1),
    Sketcher.Constraint("Coincident", 2, 2, 3, 2),
    Sketcher.Constraint("Coincident", 3, 1, 0, 1),
    Sketcher.Constraint("Coincident", 1, 3, -1, 1),
    Sketcher.Constraint("Coincident", 3, 3, -1, 1),
    Sketcher.Constraint("Radius", 1, 65.5),
    Sketcher.Constraint("Radius", 3, 61.5),
    Sketcher.Constraint("Angle", 0, Q("177 deg")),
    Sketcher.Constraint("Angle", 2, Q("67 deg")),
    Sketcher.Constraint("DistanceX", 1, 2, -1, 1, 25.592889),
    Sketcher.Constraint("DistanceY", -1, 1, 3, 1, 3.218661),
])
pocket3 = doc.addObject("PartDesign::Pocket", "Pocket002")
body.addObject(pocket3)
pocket3.Profile = sketch8
pocket3.Length = 15

sketch9 = doc.addObject("Sketcher::SketchObject", "Sketch008")
body.addObject(sketch9)
sketch9.AttachmentSupport = (doc.XY_Plane, [""])
sketch9.MapMode = "FlatFace"
sketch9.AttachmentOffset = App.Placement(App.Vector(0, 0, 70), App.Rotation())
sketch9.addGeometry(Part.Circle(App.Vector(-48.116044, -24.512167, 0), App.Vector(0, 0, 1), 3), False)
sketch9.addConstraint([
    Sketcher.Constraint("Diameter", 0, 6.0),
    Sketcher.Constraint("DistanceX", 0, 3, -1, 1, 48.116044),
    Sketcher.Constraint("DistanceY", 0, 3, -1, 1, 24.512167),
])
pocket4 = doc.addObject("PartDesign::Pocket", "Pocket003")
body.addObject(pocket4)
pocket4.Profile = sketch9
pocket4.Type = "ThroughAll"

doc.recompute()
